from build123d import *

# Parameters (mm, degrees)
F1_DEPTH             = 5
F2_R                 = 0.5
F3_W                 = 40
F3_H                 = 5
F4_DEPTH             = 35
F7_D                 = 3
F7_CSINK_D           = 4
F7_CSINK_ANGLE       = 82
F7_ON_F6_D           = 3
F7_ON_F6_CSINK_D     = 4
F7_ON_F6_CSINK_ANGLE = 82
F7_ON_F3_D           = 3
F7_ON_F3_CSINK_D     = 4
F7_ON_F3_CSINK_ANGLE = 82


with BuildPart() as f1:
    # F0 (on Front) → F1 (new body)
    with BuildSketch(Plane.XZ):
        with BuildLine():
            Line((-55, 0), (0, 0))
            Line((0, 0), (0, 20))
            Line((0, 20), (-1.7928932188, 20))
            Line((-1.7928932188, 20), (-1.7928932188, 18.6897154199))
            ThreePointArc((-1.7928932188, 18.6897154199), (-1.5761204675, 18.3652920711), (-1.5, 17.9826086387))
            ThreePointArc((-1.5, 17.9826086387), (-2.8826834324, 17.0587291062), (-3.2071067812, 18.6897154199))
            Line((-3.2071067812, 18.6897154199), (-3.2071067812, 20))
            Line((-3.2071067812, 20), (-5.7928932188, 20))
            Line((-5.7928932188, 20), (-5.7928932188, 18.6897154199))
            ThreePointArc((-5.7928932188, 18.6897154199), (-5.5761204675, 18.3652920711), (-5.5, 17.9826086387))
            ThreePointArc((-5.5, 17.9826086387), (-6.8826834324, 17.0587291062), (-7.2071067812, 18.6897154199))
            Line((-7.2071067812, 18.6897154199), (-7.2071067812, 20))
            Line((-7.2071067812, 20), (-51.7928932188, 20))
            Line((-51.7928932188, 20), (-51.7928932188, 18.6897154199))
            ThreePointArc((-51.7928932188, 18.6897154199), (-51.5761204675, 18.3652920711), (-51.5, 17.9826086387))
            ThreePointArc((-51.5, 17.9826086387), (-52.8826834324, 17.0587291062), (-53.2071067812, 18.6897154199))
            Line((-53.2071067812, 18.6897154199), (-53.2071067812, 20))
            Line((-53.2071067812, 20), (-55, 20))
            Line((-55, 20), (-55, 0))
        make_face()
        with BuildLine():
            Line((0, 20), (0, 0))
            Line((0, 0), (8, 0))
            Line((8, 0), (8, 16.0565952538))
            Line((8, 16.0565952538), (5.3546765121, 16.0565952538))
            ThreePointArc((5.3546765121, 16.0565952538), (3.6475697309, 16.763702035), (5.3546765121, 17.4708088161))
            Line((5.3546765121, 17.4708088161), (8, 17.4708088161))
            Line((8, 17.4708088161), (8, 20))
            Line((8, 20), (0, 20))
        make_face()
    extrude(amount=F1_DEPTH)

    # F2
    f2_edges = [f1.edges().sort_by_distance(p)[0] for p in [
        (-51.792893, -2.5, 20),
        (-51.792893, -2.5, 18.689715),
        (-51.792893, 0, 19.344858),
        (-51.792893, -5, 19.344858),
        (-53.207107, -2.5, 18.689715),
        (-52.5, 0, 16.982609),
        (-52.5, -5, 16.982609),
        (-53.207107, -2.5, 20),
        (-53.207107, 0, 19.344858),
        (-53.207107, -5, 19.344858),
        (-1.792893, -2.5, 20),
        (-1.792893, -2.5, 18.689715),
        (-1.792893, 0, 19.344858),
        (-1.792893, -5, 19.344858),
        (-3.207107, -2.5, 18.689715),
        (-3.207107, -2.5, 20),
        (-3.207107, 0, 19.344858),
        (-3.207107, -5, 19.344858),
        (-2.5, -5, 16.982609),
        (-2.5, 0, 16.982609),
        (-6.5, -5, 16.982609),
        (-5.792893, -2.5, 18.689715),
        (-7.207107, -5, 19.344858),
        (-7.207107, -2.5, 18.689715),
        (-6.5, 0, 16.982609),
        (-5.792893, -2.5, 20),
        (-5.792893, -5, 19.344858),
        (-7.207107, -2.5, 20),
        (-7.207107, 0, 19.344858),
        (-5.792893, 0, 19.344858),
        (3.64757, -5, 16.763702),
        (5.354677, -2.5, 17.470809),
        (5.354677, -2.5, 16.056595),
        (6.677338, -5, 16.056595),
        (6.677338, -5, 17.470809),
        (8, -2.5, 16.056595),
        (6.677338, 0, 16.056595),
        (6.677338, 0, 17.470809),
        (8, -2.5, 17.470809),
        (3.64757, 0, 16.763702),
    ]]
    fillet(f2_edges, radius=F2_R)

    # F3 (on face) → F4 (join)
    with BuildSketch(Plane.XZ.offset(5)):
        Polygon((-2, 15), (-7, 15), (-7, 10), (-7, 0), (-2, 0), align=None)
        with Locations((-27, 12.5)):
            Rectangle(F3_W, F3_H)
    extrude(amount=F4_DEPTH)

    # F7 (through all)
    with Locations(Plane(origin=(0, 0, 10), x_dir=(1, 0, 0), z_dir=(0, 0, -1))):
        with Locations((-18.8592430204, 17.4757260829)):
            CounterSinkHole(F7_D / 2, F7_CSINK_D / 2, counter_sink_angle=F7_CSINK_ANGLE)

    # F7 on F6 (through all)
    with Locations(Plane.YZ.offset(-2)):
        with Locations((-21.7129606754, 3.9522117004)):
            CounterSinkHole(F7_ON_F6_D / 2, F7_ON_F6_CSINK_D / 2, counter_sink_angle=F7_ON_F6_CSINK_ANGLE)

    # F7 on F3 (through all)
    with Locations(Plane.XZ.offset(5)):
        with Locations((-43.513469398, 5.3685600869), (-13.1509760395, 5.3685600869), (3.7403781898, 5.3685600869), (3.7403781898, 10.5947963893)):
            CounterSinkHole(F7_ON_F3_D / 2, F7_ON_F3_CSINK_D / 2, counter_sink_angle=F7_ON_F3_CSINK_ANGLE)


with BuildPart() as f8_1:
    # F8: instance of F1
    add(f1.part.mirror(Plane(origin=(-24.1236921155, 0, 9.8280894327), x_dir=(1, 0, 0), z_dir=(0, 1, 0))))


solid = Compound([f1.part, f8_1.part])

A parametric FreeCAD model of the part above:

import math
import FreeCAD as App
import Part
import Sketcher
from FreeCAD import Vector
Q = App.Units.Quantity


def edges_at(feature, points):
    """Names of the edges that pass closest to the given points."""
    edges = feature.Shape.Edges
    near = lambda p: min(range(len(edges)), key=lambda i: edges[i].distToShape(Part.Vertex(*p))[0])
    return sorted({f"Edge{near(p) + 1}" for p in points})

doc = App.newDocument("Part")
params = doc.addObject("Spreadsheet::Sheet", "Params")
for row, (alias, value) in enumerate([
    ("sketch1_radius", "1 mm"),
    ("sketch1_width", "63 mm"),
    ("sketch1_height", "20 mm"),
    ("pad1_length", "5 mm"),
    ("fillet_radius", "0.5 mm"),
    ("sketch2_width", "45 mm"),
    ("sketch2_width2", "40 mm"),
    ("sketch2_height", "10 mm"),
    ("pad2_length", "35 mm"),
    ("sketch3_diameter", "3 mm"),
    ("hole_diameter", "3 mm"),
    ("hole_csink_diameter", "4 mm"),
    ("sketch4_diameter", "3 mm"),
    ("hole2_diameter", "3 mm"),
    ("hole2_csink_diameter", "4 mm"),
    ("sketch5_diameter", "3 mm"),
    ("hole3_diameter", "3 mm"),
    ("hole3_csink_diameter", "4 mm"),
], start=1):
    params.set(f"A{row}", alias)
    params.set(f"B{row}", "=" + value)
    params.setAlias(f"B{row}", alias)

body = doc.addObject("PartDesign::Body", "Body")

# Sketch on XZ plane
sketch1 = body.newObject("Sketcher::SketchObject", "Sketch")
sketch1.AttachmentSupport = (doc.getObject("XZ_Plane"), [""])
sketch1.MapMode = "FlatFace"
sketch1.addGeometry([
    Part.LineSegment(Vector(-55, 0, 0), Vector(8, 0, 0)),  # 0
    Part.LineSegment(Vector(8, 0, 0), Vector(8, 16.1, 0)),  # 1
    Part.LineSegment(Vector(8, 16.1, 0), Vector(5.4, 16.1, 0)),  # 2
    Part.ArcOfCircle(Part.Circle(Vector(4.6, 16.8, 0), Vector(0, 0, 1), 1), math.radians(45), math.radians(315)),  # 3
    Part.LineSegment(Vector(5.4, 17.5, 0), Vector(8, 17.5, 0)),  # 4
    Part.LineSegment(Vector(8, 17.5, 0), Vector(8, 20, 0)),  # 5
    Part.LineSegment(Vector(8, 20, 0), Vector(-1.8, 20, 0)),  # 6
    Part.LineSegment(Vector(-1.8, 20, 0), Vector(-1.8, 18.7, 0)),  # 7
    Part.ArcOfCircle(Part.Circle(Vector(-2.5, 18, 0), Vector(0, 0, 1), 1), math.radians(0), math.radians(45)),  # 8
    Part.ArcOfCircle(Part.Circle(Vector(-2.5, 18, 0), Vector(0, 0, 1), 1), math.radians(135), math.radians(360)),  # 9
    Part.LineSegment(Vector(-3.2, 18.7, 0), Vector(-3.2, 20, 0)),  # 10
    Part.LineSegment(Vector(-3.2, 20, 0), Vector(-5.8, 20, 0)),  # 11
    Part.LineSegment(Vector(-5.8, 20, 0), Vector(-5.8, 18.7, 0)),  # 12
    Part.ArcOfCircle(Part.Circle(Vector(-6.5, 18, 0), Vector(0, 0, 1), 1), math.radians(0), math.radians(45)),  # 13
    Part.ArcOfCircle(Part.Circle(Vector(-6.5, 18, 0), Vector(0, 0, 1), 1), math.radians(135), math.radians(360)),  # 14
    Part.LineSegment(Vector(-7.2, 18.7, 0), Vector(-7.2, 20, 0)),  # 15
    Part.LineSegment(Vector(-7.2, 20, 0), Vector(-51.8, 20, 0)),  # 16
    Part.LineSegment(Vector(-51.8, 20, 0), Vector(-51.8, 18.7, 0)),  # 17
    Part.ArcOfCircle(Part.Circle(Vector(-52.5, 18, 0), Vector(0, 0, 1), 1), math.radians(0), math.radians(45)),  # 18
    Part.ArcOfCircle(Part.Circle(Vector(-52.5, 18, 0), Vector(0, 0, 1), 1), math.radians(135), math.radians(360)),  # 19
    Part.LineSegment(Vector(-53.2, 18.7, 0), Vector(-53.2, 20, 0)),  # 20
    Part.LineSegment(Vector(-53.2, 20, 0), Vector(-55, 20, 0)),  # 21
    Part.LineSegment(Vector(-55, 20, 0), Vector(-55, 0, 0)),  # 22
], False)
sketch1.addConstraint([
    Sketcher.Constraint("Coincident", 0, 2, 1, 1),
    Sketcher.Constraint("Coincident", 1, 2, 2, 1),
    Sketcher.Constraint("Coincident", 2, 2, 3, 2),
    Sketcher.Constraint("Coincident", 3, 1, 4, 1),
    Sketcher.Constraint("Coincident", 4, 2, 5, 1),
    Sketcher.Constraint("Coincident", 5, 2, 6, 1),
    Sketcher.Constraint("Coincident", 6, 2, 7, 1),
    Sketcher.Constraint("Coincident", 7, 2, 8, 2),
    Sketcher.Constraint("Tangent", 8, 1, 9, 2),
    Sketcher.Constraint("Coincident", 9, 1, 10, 1),
    Sketcher.Constraint("Coincident", 10, 2, 11, 1),
    Sketcher.Constraint("Coincident", 11, 2, 12, 1),
    Sketcher.Constraint("Coincident", 12, 2, 13, 2),
    Sketcher.Constraint("Tangent", 13, 1, 14, 2),
    Sketcher.Constraint("Coincident", 14, 1, 15, 1),
    Sketcher.Constraint("Coincident", 15, 2, 16, 1),
    Sketcher.Constraint("Coincident", 16, 2, 17, 1),
    Sketcher.Constraint("Coincident", 17, 2, 18, 2),
    Sketcher.Constraint("Tangent", 18, 1, 19, 2),
    Sketcher.Constraint("Coincident", 19, 1, 20, 1),
    Sketcher.Constraint("Coincident", 20, 2, 21, 1),
    Sketcher.Constraint("Coincident", 21, 2, 22, 1),
    Sketcher.Constraint("Coincident", 22, 2, 0, 1),
    Sketcher.Constraint("Horizontal", 0),
    Sketcher.Constraint("Vertical", 1),
    Sketcher.Constraint("Horizontal", 2),
    Sketcher.Constraint("Horizontal", 4),
    Sketcher.Constraint("Vertical", 5),
    Sketcher.Constraint("Horizontal", 6),
    Sketcher.Constraint("Vertical", 7),
    Sketcher.Constraint("Vertical", 10),
    Sketcher.Constraint("Horizontal", 11),
    Sketcher.Constraint("Vertical", 12),
    Sketcher.Constraint("Vertical", 15),
    Sketcher.Constraint("Horizontal", 16),
    Sketcher.Constraint("Vertical", 17),
    Sketcher.Constraint("Vertical", 20),
    Sketcher.Constraint("Horizontal", 21),
    Sketcher.Constraint("Vertical", 22),
    Sketcher.Constraint("Equal", 3, 8),
    Sketcher.Constraint("Equal", 8, 9),
    Sketcher.Constraint("Equal", 9, 13),
    Sketcher.Constraint("Equal", 13, 14),
    Sketcher.Constraint("Equal", 14, 18),
    Sketcher.Constraint("Equal", 18, 19),
    Sketcher.Constraint("PointOnObject", 0, 2, -1),
    Sketcher.Constraint("Horizontal", 9, 3, 13, 3),
    Sketcher.Constraint("Horizontal", 14, 3, 18, 3),
    Sketcher.Constraint("Horizontal", 19, 3, 8, 1),
    Sketcher.Constraint("Horizontal", 7, 2, 9, 1),
    Sketcher.Constraint("Horizontal", 6, 2, 10, 2),
    Sketcher.Constraint("Horizontal", 9, 1, 12, 2),
    Sketcher.Constraint("Horizontal", 8, 1, 13, 1),
    Sketcher.Constraint("Horizontal", 12, 2, 14, 1),
    Sketcher.Constraint("Horizontal", 11, 2, 15, 2),
    Sketcher.Constraint("Horizontal", 14, 1, 17, 2),
    Sketcher.Constraint("Horizontal", 13, 1, 18, 1),
    Sketcher.Constraint("Horizontal", 17, 2, 19, 1),
    Sketcher.Constraint("Horizontal", 16, 2, 20, 2),
    Sketcher.Constraint("Vertical", 2, 2, 3, 1),
    Sketcher.Constraint("Vertical", 1, 2, 4, 2),
    Sketcher.Constraint("Radius", 3, Q("1 mm")),
    Sketcher.Constraint("DistanceX", 0, 1, 0, 2, Q("63 mm")),
    Sketcher.Constraint("DistanceY", 22, 2, 22, 1, Q("20 mm")),
    Sketcher.Constraint("DistanceX", -1, 1, 0, 2, Q("8 mm")),
    Sketcher.Constraint("DistanceX", 13, 3, 8, 3, Q("4 mm")),
    Sketcher.Constraint("DistanceX", 18, 3, 13, 3, Q("46 mm")),
    Sketcher.Constraint("DistanceX", 8, 3, -1, 1, Q("2.5 mm")),
    Sketcher.Constraint("DistanceY", 5, 1, 5, 2, Q("2.529191 mm")),
    Sketcher.Constraint("DistanceY", 3, 1, 8, 3, Q("0.5118 mm")),
    Sketcher.Constraint("DistanceX", 2, 2, 2, 1, Q("2.645323 mm")),
    Sketcher.Constraint("DistanceX", 6, 2, 6, 1, Q("9.792893 mm")),
    Sketcher.Constraint("DistanceY", 1, 1, 1, 2, Q("16.056595 mm")),
])
sketch1.setExpression("Constraints[61]", "Params.sketch1_radius")
sketch1.setExpression("Constraints[62]", "Params.sketch1_width")
sketch1.setExpression("Constraints[63]", "Params.sketch1_height")
pad1 = body.newObject("PartDesign::Pad", "Pad")
pad1.Profile = sketch1
pad1.setExpression("Length", "Params.pad1_length")
doc.recompute()

fillet = body.newObject("PartDesign::Fillet", "Fillet")
fillet.Base = (pad1, edges_at(pad1, [
    (-51.793, -2.5, 20),
    (-51.793, -2.5, 18.69),
    (-51.793, 0, 19.345),
    (-51.793, -5, 19.345),
    (-53.207, -2.5, 18.69),
    (-52.883, 0, 17.059),
    (-52.883, -5, 17.059),
    (-53.207, -2.5, 20),
    (-53.207, 0, 19.345),
    (-53.207, -5, 19.345),
    (-1.793, -2.5, 20),
    (-1.793, -2.5, 18.69),
    (-1.793, 0, 19.345),
    (-1.793, -5, 19.345),
    (-3.207, -2.5, 18.69),
    (-3.207, -2.5, 20),
    (-3.207, 0, 19.345),
    (-3.207, -5, 19.345),
    (-2.883, -5, 17.059),
    (-2.883, 0, 17.059),
    (-6.883, -5, 17.059),
    (-5.793, -2.5, 18.69),
    (-7.207, -5, 19.345),
    (-7.207, -2.5, 18.69),
    (-6.883, 0, 17.059),
    (-5.793, -2.5, 20),
    (-5.793, -5, 19.345),
    (-7.207, -2.5, 20),
    (-7.207, 0, 19.345),
    (-5.793, 0, 19.345),
    (3.648, -5, 16.764),
    (5.355, -2.5, 17.471),
    (5.355, -2.5, 16.057),
    (6.677, -5, 16.057),
    (6.677, -5, 17.471),
    (8, -2.5, 16.057),
    (6.677, 0, 16.057),
    (6.677, 0, 17.471),
    (8, -2.5, 17.471),
    (3.648, 0, 16.764),
]))
fillet.setExpression("Radius", "Params.fillet_radius")

# Sketch on XZ plane
sketch2 = body.newObject("Sketcher::SketchObject", "Sketch001")
sketch2.AttachmentSupport = (doc.getObject("XZ_Plane"), [""])
sketch2.MapMode = "FlatFace"
sketch2.AttachmentOffset = App.Placement(Vector(0, 0, 5), App.Rotation())
sketch2.addGeometry([
    Part.LineSegment(Vector(-2, 15, 0), Vector(-47, 15, 0)),  # 0
    Part.LineSegment(Vector(-47, 15, 0), Vector(-47, 10, 0)),  # 1
    Part.LineSegment(Vector(-47, 10, 0), Vector(-7, 10, 0)),  # 2
    Part.LineSegment(Vector(-7, 10, 0), Vector(-7, 0, 0)),  # 3
    Part.LineSegment(Vector(-7, 0, 0), Vector(-2, 0, 0)),  # 4
    Part.LineSegment(Vector(-2, 0, 0), Vector(-2, 15, 0)),  # 5
], False)
sketch2.addConstraint([
    Sketcher.Constraint("Coincident", 0, 2, 1, 1),
    Sketcher.Constraint("Coincident", 1, 2, 2, 1),
    Sketcher.Constraint("Coincident", 2, 2, 3, 1),
    Sketcher.Constraint("Coincident", 3, 2, 4, 1),
    Sketcher.Constraint("Coincident", 4, 2, 5, 1),
    Sketcher.Constraint("Coincident", 5, 2, 0, 1),
    Sketcher.Constraint("Horizontal", 0),
    Sketcher.Constraint("Vertical", 1),
    Sketcher.Constraint("Horizontal", 2),
    Sketcher.Constraint("Vertical", 3),
    Sketcher.Constraint("Horizontal", 4),
    Sketcher.Constraint("Vertical", 5),
    Sketcher.Constraint("PointOnObject", 3, 2, -1),
    Sketcher.Constraint("Equal", 4, 1),
    Sketcher.Constraint("DistanceX", 0, 2, 0, 1, Q("45 mm")),
    Sketcher.Constraint("DistanceX", 2, 1, 2, 2, Q("40 mm")),
    Sketcher.Constraint("DistanceY", 3, 2, 3, 1, Q("10 mm")),
    Sketcher.Constraint("DistanceX", 0, 2, -1, 1, Q("47 mm")),
])
sketch2.setExpression("Constraints[14]", "Params.sketch2_width")
sketch2.setExpression("Constraints[15]", "Params.sketch2_width2")
sketch2.setExpression("Constraints[16]", "Params.sketch2_height")
pad2 = body.newObject("PartDesign::Pad", "Pad001")
pad2.Profile = sketch2
pad2.setExpression("Length", "Params.pad2_length")

# Sketch on XY plane
sketch3 = body.newObject("Sketcher::SketchObject", "Sketch002")
sketch3.AttachmentSupport = (doc.getObject("XY_Plane"), [""])
sketch3.MapMode = "FlatFace"
sketch3.AttachmentOffset = App.Placement(Vector(0, 0, 10), App.Rotation())
sketch3.addGeometry(Part.Circle(Vector(-18.9, -17.5, 0), Vector(0, 0, 1), 1.5), False)
sketch3.addConstraint([
    Sketcher.Constraint("Diameter", 0, Q("3 mm")),
    Sketcher.Constraint("DistanceX", 0, 3, -1, 1, Q("18.859243 mm")),
    Sketcher.Constraint("DistanceY", 0, 3, -1, 1, Q("17.475726 mm")),
])
sketch3.setExpression("Constraints[0]", "Params.sketch3_diameter")
doc.recompute()
hole = body.newObject("PartDesign::Hole", "Hole")
hole.Profile = sketch3
hole.ThreadType = "None"
hole.setExpression("Diameter", "Params.hole_diameter")
hole.DepthType = "ThroughAll"
hole.HoleCutType = "Countersink"
hole.setExpression("HoleCutDiameter", "Params.hole_csink_diameter")
hole.HoleCutCountersinkAngle = 82
hole.Reversed = True

# Sketch on YZ plane
sketch4 = body.newObject("Sketcher::SketchObject", "Sketch003")
sketch4.AttachmentSupport = (doc.getObject("YZ_Plane"), [""])
sketch4.MapMode = "FlatFace"
sketch4.AttachmentOffset = App.Placement(Vector(0, 0, -2), App.Rotation())
sketch4.addGeometry(Part.Circle(Vector(-21.7, 4, 0), Vector(0, 0, 1), 1.5), False)
sketch4.addConstraint([
    Sketcher.Constraint("Diameter", 0, Q("3 mm")),
    Sketcher.Constraint("DistanceX", 0, 3, -1, 1, Q("21.712961 mm")),
    Sketcher.Constraint("DistanceY", -1, 1, 0, 3, Q("3.952212 mm")),
])
sketch4.setExpression("Constraints[0]", "Params.sketch4_diameter")
doc.recompute()
hole2 = body.newObject("PartDesign::Hole", "Hole001")
hole2.Profile = sketch4
hole2.ThreadType = "None"
hole2.setExpression("Diameter", "Params.hole2_diameter")
hole2.DepthType = "ThroughAll"
hole2.HoleCutType = "Countersink"
hole2.setExpression("HoleCutDiameter", "Params.hole2_csink_diameter")
hole2.HoleCutCountersinkAngle = 82

# Sketch on XZ plane
sketch5 = body.newObject("Sketcher::SketchObject", "Sketch004")
sketch5.AttachmentSupport = (doc.getObject("XZ_Plane"), [""])
sketch5.MapMode = "FlatFace"
sketch5.AttachmentOffset = App.Placement(Vector(0, 0, 5), App.Rotation())
sketch5.addGeometry([
    Part.Circle(Vector(-43.5, 5.4, 0), Vector(0, 0, 1), 1.5),
    Part.Circle(Vector(-13.2, 5.4, 0), Vector(0, 0, 1), 1.5),
    Part.Circle(Vector(3.7, 5.4, 0), Vector(0, 0, 1), 1.5),
    Part.Circle(Vector(3.7, 10.6, 0), Vector(0, 0, 1), 1.5),
], False)
sketch5.addConstraint([
    Sketcher.Constraint("Equal", 0, 1),
    Sketcher.Constraint("Equal", 1, 2),
    Sketcher.Constraint("Equal", 2, 3),
    Sketcher.Constraint("Horizontal", 0, 3, 1, 3),
    Sketcher.Constraint("Horizontal", 1, 3, 2, 3),
    Sketcher.Constraint("Vertical", 2, 3, 3, 3),
    Sketcher.Constraint("Diameter", 0, Q("3 mm")),
    Sketcher.Constraint("DistanceX", 0, 3, -1, 1, Q("43.513469 mm")),
    Sketcher.Constraint("DistanceY", -1, 1, 0, 3, Q("5.36856 mm")),
    Sketcher.Constraint("DistanceX", -1, 1, 2, 3, Q("3.740378 mm")),
    Sketcher.Constraint("DistanceX", 1, 3, -1, 1, Q("13.150976 mm")),
    Sketcher.Constraint("DistanceY", -1, 1, 3, 3, Q("10.594796 mm")),
])
sketch5.setExpression("Constraints[6]", "Params.sketch5_diameter")
doc.recompute()
hole3 = body.newObject("PartDesign::Hole", "Hole002")
hole3.Profile = sketch5
hole3.ThreadType = "None"
hole3.setExpression("Diameter", "Params.hole3_diameter")
hole3.DepthType = "ThroughAll"
hole3.HoleCutType = "Countersink"
hole3.setExpression("HoleCutDiameter", "Params.hole3_csink_diameter")
hole3.HoleCutCountersinkAngle = 82
body2 = doc.addObject("PartDesign::Body", "Body001")
doc.recompute()

mirroring = doc.addObject("Part::Mirroring", "Mirroring")
mirroring.Source = body
mirroring.Base = Vector(-24.123692, 0, 9.828089)
mirroring.Normal = Vector(0, 1, 0)
body2.BaseFeature = mirroring
doc.recompute()
mirroring.Visibility = False

doc.recompute()
